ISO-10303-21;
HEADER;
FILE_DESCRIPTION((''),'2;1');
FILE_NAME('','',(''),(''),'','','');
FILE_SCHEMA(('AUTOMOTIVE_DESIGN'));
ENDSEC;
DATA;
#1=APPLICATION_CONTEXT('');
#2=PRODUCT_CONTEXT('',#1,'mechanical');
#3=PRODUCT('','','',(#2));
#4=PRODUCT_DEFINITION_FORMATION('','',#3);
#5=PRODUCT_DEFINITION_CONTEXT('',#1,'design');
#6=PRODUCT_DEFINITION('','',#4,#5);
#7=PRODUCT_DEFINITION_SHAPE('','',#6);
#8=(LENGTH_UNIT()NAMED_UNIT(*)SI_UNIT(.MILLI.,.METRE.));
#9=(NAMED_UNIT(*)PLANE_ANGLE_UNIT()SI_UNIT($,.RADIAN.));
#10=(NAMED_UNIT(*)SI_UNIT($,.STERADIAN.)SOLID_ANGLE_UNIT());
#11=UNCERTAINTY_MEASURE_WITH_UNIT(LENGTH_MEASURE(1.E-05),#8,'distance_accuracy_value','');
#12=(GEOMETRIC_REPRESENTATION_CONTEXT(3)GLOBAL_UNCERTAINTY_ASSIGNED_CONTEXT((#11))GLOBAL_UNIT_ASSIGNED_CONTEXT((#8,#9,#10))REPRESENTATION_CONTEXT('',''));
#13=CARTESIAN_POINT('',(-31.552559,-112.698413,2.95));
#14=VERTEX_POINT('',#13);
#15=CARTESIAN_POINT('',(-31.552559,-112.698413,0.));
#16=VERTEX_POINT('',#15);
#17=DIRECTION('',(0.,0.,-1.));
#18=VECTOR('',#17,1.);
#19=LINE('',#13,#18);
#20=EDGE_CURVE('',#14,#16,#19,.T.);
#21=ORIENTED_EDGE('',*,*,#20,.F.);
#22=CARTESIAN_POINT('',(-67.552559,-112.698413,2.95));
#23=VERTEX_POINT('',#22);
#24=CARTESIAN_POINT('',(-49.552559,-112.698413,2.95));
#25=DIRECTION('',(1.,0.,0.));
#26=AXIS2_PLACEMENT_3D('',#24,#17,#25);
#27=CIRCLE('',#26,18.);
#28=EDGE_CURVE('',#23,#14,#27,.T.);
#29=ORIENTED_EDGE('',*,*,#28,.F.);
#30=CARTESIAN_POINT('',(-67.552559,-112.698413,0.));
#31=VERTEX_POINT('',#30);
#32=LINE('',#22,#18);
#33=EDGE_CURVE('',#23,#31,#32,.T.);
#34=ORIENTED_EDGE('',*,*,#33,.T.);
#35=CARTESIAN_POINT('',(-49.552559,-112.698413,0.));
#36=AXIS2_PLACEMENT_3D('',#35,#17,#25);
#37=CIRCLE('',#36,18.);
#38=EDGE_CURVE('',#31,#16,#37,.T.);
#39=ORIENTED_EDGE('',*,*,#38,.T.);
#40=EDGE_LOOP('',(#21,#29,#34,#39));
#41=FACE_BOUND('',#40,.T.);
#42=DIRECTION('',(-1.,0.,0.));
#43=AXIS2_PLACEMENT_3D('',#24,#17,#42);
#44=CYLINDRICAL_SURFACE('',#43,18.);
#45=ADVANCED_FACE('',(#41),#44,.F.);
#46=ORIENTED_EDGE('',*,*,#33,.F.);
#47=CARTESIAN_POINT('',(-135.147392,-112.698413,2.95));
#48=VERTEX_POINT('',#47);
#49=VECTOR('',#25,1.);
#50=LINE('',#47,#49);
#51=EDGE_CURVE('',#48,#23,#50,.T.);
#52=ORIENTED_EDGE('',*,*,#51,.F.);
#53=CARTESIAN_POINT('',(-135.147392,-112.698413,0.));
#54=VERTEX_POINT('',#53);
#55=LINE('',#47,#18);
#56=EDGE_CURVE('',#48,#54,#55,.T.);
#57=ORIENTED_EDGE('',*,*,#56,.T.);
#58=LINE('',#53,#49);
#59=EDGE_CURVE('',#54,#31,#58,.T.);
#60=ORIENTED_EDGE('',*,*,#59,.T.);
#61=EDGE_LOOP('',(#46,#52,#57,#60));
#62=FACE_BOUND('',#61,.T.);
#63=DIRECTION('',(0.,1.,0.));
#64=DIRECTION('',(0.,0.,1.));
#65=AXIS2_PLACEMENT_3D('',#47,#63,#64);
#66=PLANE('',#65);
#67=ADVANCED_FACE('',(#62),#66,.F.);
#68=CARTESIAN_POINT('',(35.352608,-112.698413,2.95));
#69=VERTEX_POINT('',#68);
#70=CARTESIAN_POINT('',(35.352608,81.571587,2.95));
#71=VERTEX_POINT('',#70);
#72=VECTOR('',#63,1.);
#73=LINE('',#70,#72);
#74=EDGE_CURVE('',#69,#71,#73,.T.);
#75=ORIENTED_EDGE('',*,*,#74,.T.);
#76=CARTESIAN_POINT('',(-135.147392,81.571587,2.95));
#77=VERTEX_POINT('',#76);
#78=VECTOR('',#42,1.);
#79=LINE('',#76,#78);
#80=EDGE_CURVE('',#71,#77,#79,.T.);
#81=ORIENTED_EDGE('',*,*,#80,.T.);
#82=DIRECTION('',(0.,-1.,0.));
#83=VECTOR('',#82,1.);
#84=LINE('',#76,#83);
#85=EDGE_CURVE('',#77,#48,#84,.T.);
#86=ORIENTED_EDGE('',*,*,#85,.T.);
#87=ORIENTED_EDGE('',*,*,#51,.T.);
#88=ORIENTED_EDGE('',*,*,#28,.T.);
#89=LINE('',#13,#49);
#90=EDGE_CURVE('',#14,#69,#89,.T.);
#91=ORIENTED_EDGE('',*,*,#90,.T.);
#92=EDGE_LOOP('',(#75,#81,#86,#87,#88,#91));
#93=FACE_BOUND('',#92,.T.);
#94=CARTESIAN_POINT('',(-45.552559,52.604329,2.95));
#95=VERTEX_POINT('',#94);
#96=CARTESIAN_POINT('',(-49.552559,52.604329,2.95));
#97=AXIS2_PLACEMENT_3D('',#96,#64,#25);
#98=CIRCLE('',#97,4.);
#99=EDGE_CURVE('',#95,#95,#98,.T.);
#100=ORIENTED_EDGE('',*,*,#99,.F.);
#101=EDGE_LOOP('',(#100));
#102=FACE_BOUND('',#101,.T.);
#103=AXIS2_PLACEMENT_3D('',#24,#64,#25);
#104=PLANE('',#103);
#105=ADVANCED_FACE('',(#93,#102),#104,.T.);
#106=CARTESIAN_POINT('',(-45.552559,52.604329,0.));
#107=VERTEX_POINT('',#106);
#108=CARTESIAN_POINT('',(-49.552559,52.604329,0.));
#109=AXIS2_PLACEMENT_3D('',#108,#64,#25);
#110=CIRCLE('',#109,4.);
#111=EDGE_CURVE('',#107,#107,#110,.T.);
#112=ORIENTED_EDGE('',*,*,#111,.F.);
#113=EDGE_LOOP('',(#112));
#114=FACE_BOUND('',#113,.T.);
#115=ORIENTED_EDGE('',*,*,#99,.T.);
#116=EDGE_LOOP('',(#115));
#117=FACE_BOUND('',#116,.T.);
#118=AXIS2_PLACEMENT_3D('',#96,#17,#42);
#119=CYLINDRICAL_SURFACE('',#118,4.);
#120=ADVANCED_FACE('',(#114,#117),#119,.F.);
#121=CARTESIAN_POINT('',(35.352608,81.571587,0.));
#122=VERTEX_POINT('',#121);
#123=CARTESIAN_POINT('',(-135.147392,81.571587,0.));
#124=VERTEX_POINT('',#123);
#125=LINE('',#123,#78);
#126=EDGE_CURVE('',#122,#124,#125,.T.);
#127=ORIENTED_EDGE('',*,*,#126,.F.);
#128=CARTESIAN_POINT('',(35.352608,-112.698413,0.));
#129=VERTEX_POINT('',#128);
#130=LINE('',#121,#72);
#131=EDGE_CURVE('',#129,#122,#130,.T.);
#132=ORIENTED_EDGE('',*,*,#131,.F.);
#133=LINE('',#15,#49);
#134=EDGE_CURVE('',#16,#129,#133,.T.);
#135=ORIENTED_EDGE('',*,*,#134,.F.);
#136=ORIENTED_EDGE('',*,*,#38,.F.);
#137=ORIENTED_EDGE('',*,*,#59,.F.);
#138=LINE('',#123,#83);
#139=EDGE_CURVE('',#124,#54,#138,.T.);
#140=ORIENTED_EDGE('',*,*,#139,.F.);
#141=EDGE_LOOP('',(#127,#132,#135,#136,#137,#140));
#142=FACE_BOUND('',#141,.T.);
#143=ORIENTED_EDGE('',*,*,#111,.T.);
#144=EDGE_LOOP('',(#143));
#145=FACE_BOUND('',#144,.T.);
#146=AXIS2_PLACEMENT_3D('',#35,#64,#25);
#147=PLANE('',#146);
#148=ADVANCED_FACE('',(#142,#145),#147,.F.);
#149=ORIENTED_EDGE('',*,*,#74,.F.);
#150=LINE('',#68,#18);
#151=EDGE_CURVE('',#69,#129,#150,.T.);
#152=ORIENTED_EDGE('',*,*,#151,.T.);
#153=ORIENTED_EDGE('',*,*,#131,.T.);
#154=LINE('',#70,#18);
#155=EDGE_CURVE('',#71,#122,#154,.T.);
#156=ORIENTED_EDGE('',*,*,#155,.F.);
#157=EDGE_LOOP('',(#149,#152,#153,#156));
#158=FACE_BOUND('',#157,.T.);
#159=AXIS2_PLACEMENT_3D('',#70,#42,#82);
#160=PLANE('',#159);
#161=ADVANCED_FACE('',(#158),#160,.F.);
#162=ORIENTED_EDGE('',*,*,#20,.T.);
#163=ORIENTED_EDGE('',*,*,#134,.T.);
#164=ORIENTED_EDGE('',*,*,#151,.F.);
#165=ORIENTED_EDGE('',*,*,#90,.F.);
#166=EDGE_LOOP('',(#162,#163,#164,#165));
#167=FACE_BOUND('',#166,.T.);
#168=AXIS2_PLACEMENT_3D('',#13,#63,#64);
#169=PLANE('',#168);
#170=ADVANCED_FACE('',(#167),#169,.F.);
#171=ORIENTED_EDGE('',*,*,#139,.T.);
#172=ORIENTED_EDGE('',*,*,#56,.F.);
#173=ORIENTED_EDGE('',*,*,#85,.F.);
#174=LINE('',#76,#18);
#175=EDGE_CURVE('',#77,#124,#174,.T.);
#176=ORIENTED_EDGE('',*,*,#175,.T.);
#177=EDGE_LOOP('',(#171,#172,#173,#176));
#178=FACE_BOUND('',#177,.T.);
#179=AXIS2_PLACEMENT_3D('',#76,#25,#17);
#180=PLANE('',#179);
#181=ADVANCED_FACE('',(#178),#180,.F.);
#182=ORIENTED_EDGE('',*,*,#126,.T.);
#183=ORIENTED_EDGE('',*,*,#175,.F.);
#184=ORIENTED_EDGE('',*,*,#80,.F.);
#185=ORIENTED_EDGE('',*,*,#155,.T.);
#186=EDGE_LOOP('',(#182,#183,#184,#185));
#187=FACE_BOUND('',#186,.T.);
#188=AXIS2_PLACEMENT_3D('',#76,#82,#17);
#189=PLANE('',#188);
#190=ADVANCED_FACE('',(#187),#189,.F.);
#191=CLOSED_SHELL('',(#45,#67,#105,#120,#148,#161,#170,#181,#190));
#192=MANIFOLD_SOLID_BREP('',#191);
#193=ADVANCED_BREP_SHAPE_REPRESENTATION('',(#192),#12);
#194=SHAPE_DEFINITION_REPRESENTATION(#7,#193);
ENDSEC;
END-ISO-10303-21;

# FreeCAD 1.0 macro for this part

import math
import FreeCAD as App
import Part
import Sketcher
from FreeCAD import Vector

doc = App.newDocument("Part")
params = doc.addObject("Spreadsheet::Sheet", "Params")
for row, (alias, value) in enumerate([
    ("sketch1_diameter", "8 mm"),
    ("sketch1_radius", "18 mm"),
    ("sketch1_width", "170.5 mm"),
    ("sketch1_height", "194.27 mm"),
    ("pad1_length", "2.95 mm"),
], start=1):
    params.set(f"A{row}", alias)
    params.set(f"B{row}", "=" + value)
    params.setAlias(f"B{row}", alias)

body = doc.addObject("PartDesign::Body", "Body")

sketch1 = body.newObject("Sketcher::SketchObject", "Sketch")
sketch1.AttachmentSupport = (doc.getObject("XY_Plane"), [""])
sketch1.MapMode = "FlatFace"
sketch1.addGeometry([
    Part.LineSegment(Vector(-135.1, 81.6, 0), Vector(-135.1, -112.7, 0)),
    Part.LineSegment(Vector(-135.1, -112.7, 0), Vector(-67.6, -112.7, 0)),
    Part.ArcOfCircle(Part.Circle(Vector(-49.6, -112.7, 0), Vector(0, 0, 1), 18), math.radians(0), math.radians(180)),
    Part.LineSegment(Vector(-31.6, -112.7, 0), Vector(35.4, -112.7, 0)),
    Part.LineSegment(Vector(35.4, -112.7, 0), Vector(35.4, 81.6, 0)),
    Part.LineSegment(Vector(35.4, 81.6, 0), Vector(-135.1, 81.6, 0)),
    Part.Circle(Vector(-49.6, 52.6, 0), Vector(0, 0, 1), 4),
], False)
sketch1.addConstraint([
    Sketcher.Constraint("Coincident", 0, 2, 1, 1),
    Sketcher.Constraint("Coincident", 1, 2, 2, 2),
    Sketcher.Constraint("Coincident", 2, 1, 3, 1),
    Sketcher.Constraint("Coincident", 3, 2, 4, 1),
    Sketcher.Constraint("Coincident", 4, 2, 5, 1),
    Sketcher.Constraint("Coincident", 5, 2, 0, 1),
    Sketcher.Constraint("Vertical", 0),
    Sketcher.Constraint("Horizontal", 1),
    Sketcher.Constraint("Horizontal", 3),
    Sketcher.Constraint("Vertical", 4),
    Sketcher.Constraint("Horizontal", 5),
    Sketcher.Constraint("Horizontal", 2, 3, 0, 2),
    Sketcher.Constraint("Horizontal", 1, 2, 2, 1),
    Sketcher.Constraint("Vertical", 2, 3, 6, 3),
    Sketcher.Constraint("Diameter", 6, 8.0),
    Sketcher.Constraint("Radius", 2, 18.0),
    Sketcher.Constraint("DistanceX", 5, 2, 5, 1, 170.5),
    Sketcher.Constraint("DistanceY", 0, 2, 0, 1, 194.27),
    Sketcher.Constraint("DistanceX", 1, 1, 1, 2, 67.594833),
    Sketcher.Constraint("DistanceX", 2, 3, -1, 1, 49.552559),
    Sketcher.Constraint("DistanceY", -1, 1, 6, 3, 52.604329),
    Sketcher.Constraint("DistanceY", 2, 3, 6, 3, 165.302742),
])
sketch1.setExpression("Constraints[14]", "Params.sketch1_diameter")
sketch1.setExpression("Constraints[15]", "Params.sketch1_radius")
sketch1.setExpression("Constraints[16]", "Params.sketch1_width")
sketch1.setExpression("Constraints[17]", "Params.sketch1_height")
pad1 = body.newObject("PartDesign::Pad", "Pad")
pad1.Profile = sketch1
pad1.setExpression("Length", "Params.pad1_length")

doc.recompute()
